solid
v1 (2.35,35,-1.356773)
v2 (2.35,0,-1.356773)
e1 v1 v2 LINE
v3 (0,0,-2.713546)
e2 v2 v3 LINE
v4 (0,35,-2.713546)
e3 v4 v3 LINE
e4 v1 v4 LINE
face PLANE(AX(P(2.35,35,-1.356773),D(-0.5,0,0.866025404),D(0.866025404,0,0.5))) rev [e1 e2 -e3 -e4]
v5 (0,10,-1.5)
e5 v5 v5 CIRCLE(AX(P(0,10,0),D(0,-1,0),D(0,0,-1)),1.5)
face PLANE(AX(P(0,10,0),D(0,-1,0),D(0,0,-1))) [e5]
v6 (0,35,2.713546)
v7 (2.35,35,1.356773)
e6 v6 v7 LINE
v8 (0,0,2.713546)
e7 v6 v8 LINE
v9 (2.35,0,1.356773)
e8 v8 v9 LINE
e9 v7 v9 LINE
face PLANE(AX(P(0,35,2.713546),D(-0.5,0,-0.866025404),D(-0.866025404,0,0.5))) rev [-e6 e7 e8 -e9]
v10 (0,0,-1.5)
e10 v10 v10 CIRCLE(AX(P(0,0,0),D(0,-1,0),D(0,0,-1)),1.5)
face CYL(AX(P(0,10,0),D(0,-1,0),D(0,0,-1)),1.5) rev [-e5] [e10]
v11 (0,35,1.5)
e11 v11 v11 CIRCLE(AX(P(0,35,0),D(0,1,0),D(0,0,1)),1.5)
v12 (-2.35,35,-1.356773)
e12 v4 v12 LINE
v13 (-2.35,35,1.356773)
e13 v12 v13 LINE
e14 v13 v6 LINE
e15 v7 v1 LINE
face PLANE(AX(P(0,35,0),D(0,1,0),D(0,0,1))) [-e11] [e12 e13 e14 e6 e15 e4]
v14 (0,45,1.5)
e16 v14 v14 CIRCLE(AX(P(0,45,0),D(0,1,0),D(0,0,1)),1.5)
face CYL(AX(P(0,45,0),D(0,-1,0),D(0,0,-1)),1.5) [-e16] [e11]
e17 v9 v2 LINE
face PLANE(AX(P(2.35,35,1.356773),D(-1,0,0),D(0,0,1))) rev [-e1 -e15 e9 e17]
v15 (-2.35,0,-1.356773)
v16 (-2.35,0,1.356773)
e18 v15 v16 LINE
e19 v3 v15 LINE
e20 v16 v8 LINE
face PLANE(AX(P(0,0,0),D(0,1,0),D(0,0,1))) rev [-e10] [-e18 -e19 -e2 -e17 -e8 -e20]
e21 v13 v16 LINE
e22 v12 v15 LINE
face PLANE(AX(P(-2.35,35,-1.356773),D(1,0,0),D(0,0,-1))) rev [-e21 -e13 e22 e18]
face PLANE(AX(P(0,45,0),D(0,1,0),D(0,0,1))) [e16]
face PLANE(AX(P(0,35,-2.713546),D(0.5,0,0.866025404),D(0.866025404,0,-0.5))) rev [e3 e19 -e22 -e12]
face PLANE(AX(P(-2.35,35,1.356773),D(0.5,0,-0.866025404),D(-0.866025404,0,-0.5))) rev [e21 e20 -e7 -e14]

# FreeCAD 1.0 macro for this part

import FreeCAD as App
import Part
import Sketcher
Q = App.Units.Quantity


def add_polygon(sketch, points):
    """Adds a closed chain of lines whose ends are joined by coincident constraints."""
    first, n = sketch.GeometryCount, len(points)
    for a, b in zip(points, points[1:] + points[:1]):
        sketch.addGeometry(Part.LineSegment(App.Vector(*a, 0), App.Vector(*b, 0)), False)
    for i in range(n):
        sketch.addConstraint(Sketcher.Constraint("Coincident", first + i, 2, first + (i + 1) % n, 1))

doc = App.newDocument("Part")
body = doc.addObject("PartDesign::Body", "Body")

# Sketch on XZ plane
sketch1 = body.newObject("Sketcher::SketchObject", "Sketch")
sketch1.AttachmentSupport = (doc.getObject("XZ_Plane"), [""])
sketch1.MapMode = "FlatFace"
add_polygon(sketch1, [(0, -2.7), (-2.4, -1.4), (-2.4, 1.4), (0, 2.7), (2.4, 1.4), (2.4, -1.4)])  # lines 0-5
sketch1.addConstraint(Sketcher.Constraint("Vertical", 1))
sketch1.addConstraint(Sketcher.Constraint("Vertical", 4))
sketch1.addConstraint(Sketcher.Constraint("Symmetric", 0, 2, 3, 2, -1, 1))
sketch1.addConstraint(Sketcher.Constraint("Symmetric", 2, 2, 5, 2, -1, 1))
sketch1.addConstraint(Sketcher.Constraint("PointOnObject", 2, 2, -2))
sketch1.addConstraint(Sketcher.Constraint("Parallel", 2, 5))
sketch1.addConstraint(Sketcher.Constraint("Horizontal", 1, 2, 3, 2))
sketch1.addConstraint(Sketcher.Constraint("Angle", 0, Q("150 deg")))
sketch1.addConstraint(Sketcher.Constraint("DistanceX", 1, 2, 3, 2, 4.7))
sketch1.addConstraint(Sketcher.Constraint("DistanceY", 1, 1, 1, 2, 2.713546))
pad1 = body.newObject("PartDesign::Pad", "Pad")
pad1.Profile = sketch1
pad1.Length = 35
pad1.Reversed = True

# Sketch on XZ plane
sketch2 = body.newObject("Sketcher::SketchObject", "Sketch001")
sketch2.AttachmentSupport = (doc.getObject("XZ_Plane"), [""])
sketch2.MapMode = "FlatFace"
sketch2.AttachmentOffset = App.Placement(App.Vector(0, 0, -35), App.Rotation())
sketch2.addGeometry(Part.Circle(App.Vector(0, 0, 0), App.Vector(0, 0, 1), 1.5), False)
sketch2.addConstraint(Sketcher.Constraint("Coincident", 0, 3, -1, 1))
sketch2.addConstraint(Sketcher.Constraint("Diameter", 0, 3.0))
pad2 = body.newObject("PartDesign::Pad", "Pad001")
pad2.Profile = sketch2
pad2.Length = 10
pad2.Reversed = True

# Sketch on XZ plane
sketch3 = body.newObject("Sketcher::SketchObject", "Sketch002")
sketch3.AttachmentSupport = (doc.getObject("XZ_Plane"), [""])
sketch3.MapMode = "FlatFace"
sketch3.addGeometry(Part.Circle(App.Vector(0, 0, 0), App.Vector(0, 0, 1), 1.5), False)
sketch3.addConstraint(Sketcher.Constraint("Coincident", 0, 3, -1, 1))
sketch3.addConstraint(Sketcher.Constraint("Diameter", 0, 3.0))
pocket1 = body.newObject("PartDesign::Pocket", "Pocket")
pocket1.Profile = sketch3
pocket1.Length = 10

doc.recompute()
